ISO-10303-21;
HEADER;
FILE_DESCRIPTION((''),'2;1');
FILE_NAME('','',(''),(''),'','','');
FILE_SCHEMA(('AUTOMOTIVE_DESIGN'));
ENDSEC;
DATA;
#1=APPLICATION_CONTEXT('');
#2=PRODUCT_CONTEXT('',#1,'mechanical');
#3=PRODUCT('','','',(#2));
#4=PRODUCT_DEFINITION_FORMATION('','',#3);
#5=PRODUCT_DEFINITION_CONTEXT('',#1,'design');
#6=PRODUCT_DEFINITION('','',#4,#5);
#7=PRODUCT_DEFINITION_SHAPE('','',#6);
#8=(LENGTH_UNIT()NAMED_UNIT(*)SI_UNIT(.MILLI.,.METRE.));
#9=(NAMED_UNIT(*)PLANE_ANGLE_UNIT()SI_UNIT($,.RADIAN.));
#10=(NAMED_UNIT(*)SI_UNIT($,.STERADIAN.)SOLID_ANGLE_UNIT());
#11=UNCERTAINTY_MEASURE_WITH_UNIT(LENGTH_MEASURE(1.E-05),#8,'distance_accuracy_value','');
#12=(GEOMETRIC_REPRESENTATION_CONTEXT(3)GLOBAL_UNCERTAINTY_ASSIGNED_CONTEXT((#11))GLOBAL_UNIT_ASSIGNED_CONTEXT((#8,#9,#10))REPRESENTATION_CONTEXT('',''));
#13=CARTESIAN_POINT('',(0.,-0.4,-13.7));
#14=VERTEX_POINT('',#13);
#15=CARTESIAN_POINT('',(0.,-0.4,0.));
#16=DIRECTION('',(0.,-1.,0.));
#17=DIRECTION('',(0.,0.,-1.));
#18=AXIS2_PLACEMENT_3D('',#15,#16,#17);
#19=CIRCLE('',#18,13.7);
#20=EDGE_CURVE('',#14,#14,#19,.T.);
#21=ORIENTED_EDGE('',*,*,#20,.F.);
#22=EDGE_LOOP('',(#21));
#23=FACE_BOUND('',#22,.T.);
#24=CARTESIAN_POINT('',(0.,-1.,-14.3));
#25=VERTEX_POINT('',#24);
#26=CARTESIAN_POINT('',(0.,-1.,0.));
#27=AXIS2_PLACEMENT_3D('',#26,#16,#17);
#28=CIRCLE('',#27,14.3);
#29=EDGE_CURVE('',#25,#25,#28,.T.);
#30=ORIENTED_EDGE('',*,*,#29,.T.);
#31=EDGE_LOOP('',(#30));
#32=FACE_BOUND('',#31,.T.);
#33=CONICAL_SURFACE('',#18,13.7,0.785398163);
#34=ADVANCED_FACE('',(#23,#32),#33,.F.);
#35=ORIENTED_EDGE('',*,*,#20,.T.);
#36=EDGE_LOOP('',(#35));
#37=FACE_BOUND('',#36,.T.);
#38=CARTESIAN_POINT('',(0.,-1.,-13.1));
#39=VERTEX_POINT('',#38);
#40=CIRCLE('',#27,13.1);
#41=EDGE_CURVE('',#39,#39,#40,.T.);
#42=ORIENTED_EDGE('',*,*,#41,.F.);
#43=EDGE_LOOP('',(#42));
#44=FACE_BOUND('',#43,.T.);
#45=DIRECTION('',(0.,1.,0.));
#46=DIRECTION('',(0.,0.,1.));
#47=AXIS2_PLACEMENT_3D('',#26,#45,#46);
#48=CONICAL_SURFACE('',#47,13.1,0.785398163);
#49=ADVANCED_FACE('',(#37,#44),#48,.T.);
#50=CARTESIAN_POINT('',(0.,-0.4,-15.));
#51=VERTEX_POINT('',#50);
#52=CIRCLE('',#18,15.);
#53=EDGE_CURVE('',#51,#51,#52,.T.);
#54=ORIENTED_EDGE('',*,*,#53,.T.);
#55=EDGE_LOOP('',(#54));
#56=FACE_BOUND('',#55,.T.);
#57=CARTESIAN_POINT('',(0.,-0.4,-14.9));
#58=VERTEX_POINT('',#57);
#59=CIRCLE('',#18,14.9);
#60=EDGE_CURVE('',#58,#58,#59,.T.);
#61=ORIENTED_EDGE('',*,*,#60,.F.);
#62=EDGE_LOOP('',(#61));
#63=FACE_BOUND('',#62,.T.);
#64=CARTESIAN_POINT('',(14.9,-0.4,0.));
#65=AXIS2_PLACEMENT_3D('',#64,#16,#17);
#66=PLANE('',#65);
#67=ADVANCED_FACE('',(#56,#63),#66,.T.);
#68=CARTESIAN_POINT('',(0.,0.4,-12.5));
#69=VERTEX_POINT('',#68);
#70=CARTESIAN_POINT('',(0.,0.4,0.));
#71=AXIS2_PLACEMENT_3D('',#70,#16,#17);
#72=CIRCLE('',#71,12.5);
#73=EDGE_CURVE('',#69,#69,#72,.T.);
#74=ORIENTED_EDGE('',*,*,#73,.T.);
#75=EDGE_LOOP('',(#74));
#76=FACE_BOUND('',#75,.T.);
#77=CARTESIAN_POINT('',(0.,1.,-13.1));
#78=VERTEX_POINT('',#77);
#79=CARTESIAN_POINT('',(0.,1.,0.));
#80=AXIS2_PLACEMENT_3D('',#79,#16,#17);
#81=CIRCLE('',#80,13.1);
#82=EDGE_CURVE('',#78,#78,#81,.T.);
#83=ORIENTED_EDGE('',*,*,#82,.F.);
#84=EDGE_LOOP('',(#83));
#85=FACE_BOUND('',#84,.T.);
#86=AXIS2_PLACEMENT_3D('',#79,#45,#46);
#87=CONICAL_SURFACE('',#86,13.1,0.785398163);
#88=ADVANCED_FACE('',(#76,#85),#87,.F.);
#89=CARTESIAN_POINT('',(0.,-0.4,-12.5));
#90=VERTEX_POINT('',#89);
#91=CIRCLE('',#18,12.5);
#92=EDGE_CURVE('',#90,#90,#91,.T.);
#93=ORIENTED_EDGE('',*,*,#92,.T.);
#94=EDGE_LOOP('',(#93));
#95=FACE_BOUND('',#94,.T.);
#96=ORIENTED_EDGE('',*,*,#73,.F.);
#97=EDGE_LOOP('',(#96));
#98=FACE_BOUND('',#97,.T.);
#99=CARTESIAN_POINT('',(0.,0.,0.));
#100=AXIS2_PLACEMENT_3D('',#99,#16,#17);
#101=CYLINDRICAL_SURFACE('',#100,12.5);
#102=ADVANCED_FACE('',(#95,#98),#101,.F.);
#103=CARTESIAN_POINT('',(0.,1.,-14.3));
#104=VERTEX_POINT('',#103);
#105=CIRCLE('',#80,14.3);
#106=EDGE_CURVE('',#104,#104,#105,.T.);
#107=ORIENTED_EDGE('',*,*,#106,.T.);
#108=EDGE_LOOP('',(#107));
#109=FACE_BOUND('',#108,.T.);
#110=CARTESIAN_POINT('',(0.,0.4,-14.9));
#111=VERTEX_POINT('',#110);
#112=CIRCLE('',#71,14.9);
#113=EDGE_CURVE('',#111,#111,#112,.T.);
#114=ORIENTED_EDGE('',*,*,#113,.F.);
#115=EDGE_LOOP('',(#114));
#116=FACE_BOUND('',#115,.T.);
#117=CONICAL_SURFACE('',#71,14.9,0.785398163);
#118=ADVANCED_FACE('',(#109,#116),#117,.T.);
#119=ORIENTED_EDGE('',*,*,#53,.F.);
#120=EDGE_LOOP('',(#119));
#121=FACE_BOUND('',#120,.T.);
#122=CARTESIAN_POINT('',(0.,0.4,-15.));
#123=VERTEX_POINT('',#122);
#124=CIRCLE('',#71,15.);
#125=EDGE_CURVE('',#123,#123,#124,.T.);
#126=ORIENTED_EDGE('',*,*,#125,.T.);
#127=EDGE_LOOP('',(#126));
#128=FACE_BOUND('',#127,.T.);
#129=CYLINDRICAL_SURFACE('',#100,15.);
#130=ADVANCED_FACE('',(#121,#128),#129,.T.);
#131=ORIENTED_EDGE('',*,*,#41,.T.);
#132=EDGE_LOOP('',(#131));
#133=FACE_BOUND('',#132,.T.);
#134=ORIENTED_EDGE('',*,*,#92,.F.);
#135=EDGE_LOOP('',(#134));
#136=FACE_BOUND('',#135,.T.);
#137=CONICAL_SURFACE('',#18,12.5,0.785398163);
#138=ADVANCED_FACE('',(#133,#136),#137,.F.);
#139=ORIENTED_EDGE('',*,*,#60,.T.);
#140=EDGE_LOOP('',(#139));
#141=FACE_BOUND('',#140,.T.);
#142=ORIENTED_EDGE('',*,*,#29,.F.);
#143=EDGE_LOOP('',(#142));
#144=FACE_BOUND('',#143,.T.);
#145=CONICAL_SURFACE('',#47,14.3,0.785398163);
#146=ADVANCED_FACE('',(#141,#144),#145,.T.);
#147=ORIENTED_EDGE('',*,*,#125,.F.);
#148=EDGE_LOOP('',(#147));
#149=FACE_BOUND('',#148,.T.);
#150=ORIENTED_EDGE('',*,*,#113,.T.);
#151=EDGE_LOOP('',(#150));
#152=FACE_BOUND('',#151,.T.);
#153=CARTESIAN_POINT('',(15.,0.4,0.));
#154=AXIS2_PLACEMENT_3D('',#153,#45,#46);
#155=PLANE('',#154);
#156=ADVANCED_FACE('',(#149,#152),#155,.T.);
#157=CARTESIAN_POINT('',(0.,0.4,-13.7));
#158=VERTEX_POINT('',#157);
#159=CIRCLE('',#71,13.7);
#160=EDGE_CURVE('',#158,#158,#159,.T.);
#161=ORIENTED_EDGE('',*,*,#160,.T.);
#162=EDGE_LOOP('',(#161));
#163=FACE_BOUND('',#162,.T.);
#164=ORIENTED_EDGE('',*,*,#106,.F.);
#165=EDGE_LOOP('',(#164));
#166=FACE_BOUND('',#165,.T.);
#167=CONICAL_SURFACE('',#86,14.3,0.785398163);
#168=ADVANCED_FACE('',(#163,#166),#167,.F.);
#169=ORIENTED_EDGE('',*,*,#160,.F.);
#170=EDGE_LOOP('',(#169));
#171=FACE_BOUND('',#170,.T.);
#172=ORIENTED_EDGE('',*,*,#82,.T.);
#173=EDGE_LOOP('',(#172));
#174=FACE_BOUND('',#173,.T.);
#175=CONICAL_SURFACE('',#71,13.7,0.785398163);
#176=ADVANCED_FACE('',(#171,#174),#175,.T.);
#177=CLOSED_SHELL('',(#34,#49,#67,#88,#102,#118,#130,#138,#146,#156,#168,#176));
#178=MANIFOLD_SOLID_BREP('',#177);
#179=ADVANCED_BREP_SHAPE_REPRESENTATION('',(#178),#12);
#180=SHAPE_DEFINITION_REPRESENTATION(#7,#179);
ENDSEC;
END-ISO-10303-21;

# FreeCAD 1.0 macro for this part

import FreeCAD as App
import Part
import Sketcher
from FreeCAD import Vector


def add_polygon(sketch, points):
    """Adds a closed chain of lines whose ends are joined by coincident constraints."""
    first, n = sketch.GeometryCount, len(points)
    for a, b in zip(points, points[1:] + points[:1]):
        sketch.addGeometry(Part.LineSegment(App.Vector(*a, 0), App.Vector(*b, 0)), False)
    for i in range(n):
        sketch.addConstraint(Sketcher.Constraint("Coincident", first + i, 2, first + (i + 1) % n, 1))

doc = App.newDocument("Part")
body = doc.addObject("PartDesign::Body", "Body")

sketch1 = doc.addObject("Sketcher::SketchObject", "Sketch")
body.addObject(sketch1)
sketch1.AttachmentSupport = (doc.XY_Plane, [""])
sketch1.MapMode = "FlatFace"
add_polygon(sketch1, [(12.5, 0.4), (12.5, -0.4), (13.1, -1), (13.7, -0.4), (14.3, -1), (14.9, -0.4), (15, -0.4), (15, 0.4), (14.9, 0.4), (14.3, 1), (13.7, 0.4), (13.1, 1)])
sketch1.addConstraint([
    Sketcher.Constraint("Vertical", 0),
    Sketcher.Constraint("Horizontal", 5),
    Sketcher.Constraint("Vertical", 6),
    Sketcher.Constraint("Horizontal", 7),
    Sketcher.Constraint("Symmetric", 4, 2, 7, 2, -1),
    Sketcher.Constraint("Symmetric", 3, 2, 8, 2, -1),
    Sketcher.Constraint("Symmetric", 2, 2, 9, 2, -1),
    Sketcher.Constraint("Symmetric", 1, 2, 10, 2, -1),
    Sketcher.Constraint("Perpendicular", 1, 2),
    Sketcher.Constraint("Perpendicular", 2, 3),
    Sketcher.Constraint("Perpendicular", 3, 4),
    Sketcher.Constraint("Perpendicular", 4, 8),
    Sketcher.Constraint("Perpendicular", 10, 11),
    Sketcher.Constraint("Horizontal", 0, 2, 2, 2),
    Sketcher.Constraint("Horizontal", 1, 2, 3, 2),
    Sketcher.Constraint("Horizontal", 2, 2, 4, 2),
    Sketcher.Constraint("DistanceX", 5, 1, 5, 2, 0.1),
    Sketcher.Constraint("DistanceY", 0, 2, 0, 1, 0.8),
    Sketcher.Constraint("DistanceY", 1, 2, -1, 1, 1.0),
    Sketcher.Constraint("DistanceX", -1, 1, 5, 2, 15.0),
])
revolution = doc.addObject("PartDesign::Revolution", "Revolution")
body.addObject(revolution)
revolution.Profile = sketch1
revolution.ReferenceAxis = (sketch1, ["V_Axis"])
revolution.Angle = 360

doc.recompute()
